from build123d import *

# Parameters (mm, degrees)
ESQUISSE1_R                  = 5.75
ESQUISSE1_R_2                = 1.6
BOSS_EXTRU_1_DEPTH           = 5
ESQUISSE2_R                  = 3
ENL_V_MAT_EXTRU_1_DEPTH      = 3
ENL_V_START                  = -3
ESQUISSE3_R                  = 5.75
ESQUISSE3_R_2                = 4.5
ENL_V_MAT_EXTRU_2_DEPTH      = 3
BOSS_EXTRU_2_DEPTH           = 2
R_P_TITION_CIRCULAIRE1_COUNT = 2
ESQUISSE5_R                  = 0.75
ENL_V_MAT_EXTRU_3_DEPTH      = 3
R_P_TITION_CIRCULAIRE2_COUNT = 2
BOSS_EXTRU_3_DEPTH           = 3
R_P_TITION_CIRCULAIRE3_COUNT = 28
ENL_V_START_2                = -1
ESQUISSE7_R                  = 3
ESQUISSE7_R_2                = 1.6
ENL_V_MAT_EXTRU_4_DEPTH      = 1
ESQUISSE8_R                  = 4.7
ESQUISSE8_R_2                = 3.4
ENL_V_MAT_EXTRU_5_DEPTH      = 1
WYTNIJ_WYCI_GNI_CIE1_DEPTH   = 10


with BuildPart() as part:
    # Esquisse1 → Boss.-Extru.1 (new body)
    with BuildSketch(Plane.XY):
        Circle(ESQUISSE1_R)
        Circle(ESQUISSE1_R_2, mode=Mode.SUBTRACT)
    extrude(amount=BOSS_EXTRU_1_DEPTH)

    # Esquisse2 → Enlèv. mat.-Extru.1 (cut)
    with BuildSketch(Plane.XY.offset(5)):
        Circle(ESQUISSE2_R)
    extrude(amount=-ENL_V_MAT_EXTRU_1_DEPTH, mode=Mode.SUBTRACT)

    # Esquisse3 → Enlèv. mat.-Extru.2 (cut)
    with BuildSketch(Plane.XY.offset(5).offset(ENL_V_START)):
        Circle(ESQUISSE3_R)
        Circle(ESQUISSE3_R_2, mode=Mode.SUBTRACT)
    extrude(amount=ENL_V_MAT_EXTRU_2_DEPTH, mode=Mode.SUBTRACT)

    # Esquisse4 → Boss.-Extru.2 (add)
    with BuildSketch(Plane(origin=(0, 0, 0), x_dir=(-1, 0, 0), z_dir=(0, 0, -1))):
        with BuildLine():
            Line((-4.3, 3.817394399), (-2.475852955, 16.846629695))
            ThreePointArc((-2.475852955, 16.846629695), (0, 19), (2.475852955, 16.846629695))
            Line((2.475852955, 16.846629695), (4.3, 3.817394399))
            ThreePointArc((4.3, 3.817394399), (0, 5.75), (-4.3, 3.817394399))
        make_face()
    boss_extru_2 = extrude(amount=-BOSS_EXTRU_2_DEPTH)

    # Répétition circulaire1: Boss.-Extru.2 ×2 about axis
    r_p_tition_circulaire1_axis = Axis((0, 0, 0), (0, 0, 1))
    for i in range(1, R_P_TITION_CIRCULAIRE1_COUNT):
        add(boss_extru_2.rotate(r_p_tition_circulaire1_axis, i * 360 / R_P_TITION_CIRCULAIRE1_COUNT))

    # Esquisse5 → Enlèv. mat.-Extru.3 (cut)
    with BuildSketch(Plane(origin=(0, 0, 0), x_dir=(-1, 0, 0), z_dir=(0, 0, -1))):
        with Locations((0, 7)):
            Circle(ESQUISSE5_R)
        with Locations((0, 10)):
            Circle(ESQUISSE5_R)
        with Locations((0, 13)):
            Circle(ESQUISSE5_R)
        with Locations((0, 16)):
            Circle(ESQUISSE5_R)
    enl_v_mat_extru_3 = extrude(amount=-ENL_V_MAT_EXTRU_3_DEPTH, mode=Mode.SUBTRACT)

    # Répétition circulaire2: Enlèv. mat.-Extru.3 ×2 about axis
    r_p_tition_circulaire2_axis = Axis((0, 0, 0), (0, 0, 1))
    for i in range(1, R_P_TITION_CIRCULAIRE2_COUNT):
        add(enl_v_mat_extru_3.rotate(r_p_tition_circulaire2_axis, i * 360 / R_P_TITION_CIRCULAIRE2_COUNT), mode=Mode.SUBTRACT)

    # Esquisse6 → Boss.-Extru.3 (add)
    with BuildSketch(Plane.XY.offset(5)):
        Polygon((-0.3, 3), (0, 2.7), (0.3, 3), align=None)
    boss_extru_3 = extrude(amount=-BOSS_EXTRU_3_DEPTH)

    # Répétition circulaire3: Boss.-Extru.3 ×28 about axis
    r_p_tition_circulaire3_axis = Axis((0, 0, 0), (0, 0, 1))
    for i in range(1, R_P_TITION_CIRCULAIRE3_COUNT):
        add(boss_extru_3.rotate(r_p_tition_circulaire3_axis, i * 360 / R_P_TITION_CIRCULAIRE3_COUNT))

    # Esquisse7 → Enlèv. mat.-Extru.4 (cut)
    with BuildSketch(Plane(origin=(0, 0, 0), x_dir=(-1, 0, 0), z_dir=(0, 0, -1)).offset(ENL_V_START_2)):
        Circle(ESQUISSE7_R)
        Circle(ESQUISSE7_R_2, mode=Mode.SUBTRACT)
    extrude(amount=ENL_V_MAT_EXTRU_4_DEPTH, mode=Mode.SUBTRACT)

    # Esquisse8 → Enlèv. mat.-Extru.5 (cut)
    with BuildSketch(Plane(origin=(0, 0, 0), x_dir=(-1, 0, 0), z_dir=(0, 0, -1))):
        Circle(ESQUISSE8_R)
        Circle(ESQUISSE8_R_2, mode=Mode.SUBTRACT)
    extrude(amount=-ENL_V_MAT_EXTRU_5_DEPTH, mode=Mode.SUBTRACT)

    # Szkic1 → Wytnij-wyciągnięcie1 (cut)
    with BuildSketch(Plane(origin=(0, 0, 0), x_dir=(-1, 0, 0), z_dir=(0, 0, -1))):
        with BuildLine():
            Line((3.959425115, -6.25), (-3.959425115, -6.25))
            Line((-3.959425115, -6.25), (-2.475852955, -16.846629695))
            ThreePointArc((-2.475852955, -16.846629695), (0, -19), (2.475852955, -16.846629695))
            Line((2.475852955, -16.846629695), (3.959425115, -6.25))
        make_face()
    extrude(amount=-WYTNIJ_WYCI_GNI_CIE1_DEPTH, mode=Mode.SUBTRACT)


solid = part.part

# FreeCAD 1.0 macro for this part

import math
import FreeCAD as App
import Part
import Sketcher
from FreeCAD import Vector
Q = App.Units.Quantity


def add_polygon(sketch, points):
    """Adds a closed chain of lines whose ends are joined by coincident constraints."""
    first, n = sketch.GeometryCount, len(points)
    for a, b in zip(points, points[1:] + points[:1]):
        sketch.addGeometry(Part.LineSegment(App.Vector(*a, 0), App.Vector(*b, 0)), False)
    for i in range(n):
        sketch.addConstraint(Sketcher.Constraint("Coincident", first + i, 2, first + (i + 1) % n, 1))

doc = App.newDocument("Part")
body = doc.addObject("PartDesign::Body", "Body")

# Sketch on XY plane
sketch1 = body.newObject("Sketcher::SketchObject", "Sketch")
sketch1.AttachmentSupport = (doc.getObject("XY_Plane"), [""])
sketch1.MapMode = "FlatFace"
sketch1.addGeometry(Part.Circle(Vector(0, 0, 0), Vector(0, 0, 1), 5.75), False)
sketch1.addGeometry(Part.Circle(Vector(0, 0, 0), Vector(0, 0, 1), 1.6), False)
sketch1.addConstraint(Sketcher.Constraint("Coincident", 0, 3, -1, 1))
sketch1.addConstraint(Sketcher.Constraint("Coincident", 1, 3, -1, 1))
sketch1.addConstraint(Sketcher.Constraint("Diameter", 0, Q("11.5 mm")))
sketch1.addConstraint(Sketcher.Constraint("Diameter", 1, Q("3.2 mm")))
pad1 = body.newObject("PartDesign::Pad", "Pad")
pad1.Profile = sketch1
pad1.Length = 5

# Sketch on XY plane
sketch2 = body.newObject("Sketcher::SketchObject", "Sketch001")
sketch2.AttachmentSupport = (doc.getObject("XY_Plane"), [""])
sketch2.MapMode = "FlatFace"
sketch2.AttachmentOffset = App.Placement(Vector(0, 0, 5), App.Rotation())
sketch2.addGeometry(Part.Circle(Vector(0, 0, 0), Vector(0, 0, 1), 3), False)
sketch2.addConstraint(Sketcher.Constraint("Coincident", 0, 3, -1, 1))
sketch2.addConstraint(Sketcher.Constraint("Diameter", 0, Q("6 mm")))
pocket1 = body.newObject("PartDesign::Pocket", "Pocket")
pocket1.Profile = sketch2
pocket1.Length = 3

# Sketch on XY plane
sketch3 = body.newObject("Sketcher::SketchObject", "Sketch002")
sketch3.AttachmentSupport = (doc.getObject("XY_Plane"), [""])
sketch3.MapMode = "FlatFace"
sketch3.AttachmentOffset = App.Placement(Vector(0, 0, 2), App.Rotation())
sketch3.addGeometry(Part.Circle(Vector(0, 0, 0), Vector(0, 0, 1), 5.75), False)
sketch3.addGeometry(Part.Circle(Vector(0, 0, 0), Vector(0, 0, 1), 4.5), False)
sketch3.addConstraint(Sketcher.Constraint("Coincident", 0, 3, -1, 1))
sketch3.addConstraint(Sketcher.Constraint("Coincident", 1, 3, -1, 1))
sketch3.addConstraint(Sketcher.Constraint("Diameter", 1, Q("9 mm")))
sketch3.addConstraint(Sketcher.Constraint("Diameter", 0, Q("11.5 mm")))
pocket2 = body.newObject("PartDesign::Pocket", "Pocket001")
pocket2.Profile = sketch3
pocket2.Length = 3
pocket2.Reversed = True

# Sketch on XY plane
sketch4 = body.newObject("Sketcher::SketchObject", "Sketch003")
sketch4.AttachmentSupport = (doc.getObject("XY_Plane"), [""])
sketch4.MapMode = "FlatFace"
sketch4.addGeometry(Part.LineSegment(Vector(2.475853, 16.84663, 0), Vector(4.3, 3.817394, 0)), False)
sketch4.addGeometry(Part.ArcOfCircle(Part.Circle(Vector(0, 0, 0), Vector(0, 0, 1), 5.75), math.radians(41.597584), math.radians(138.402416)), False)
sketch4.addGeometry(Part.LineSegment(Vector(-4.3, 3.817394, 0), Vector(-2.475853, 16.84663, 0)), False)
sketch4.addGeometry(Part.ArcOfCircle(Part.Circle(Vector(0, 16.5, 0), Vector(0, 0, 1), 2.5), math.radians(7.969844), math.radians(172.030156)), False)
sketch4.addConstraint(Sketcher.Constraint("Coincident", 0, 2, 1, 1))
sketch4.addConstraint(Sketcher.Constraint("Coincident", 1, 2, 2, 1))
sketch4.addConstraint(Sketcher.Constraint("Tangent", 2, 2, 3, 2))
sketch4.addConstraint(Sketcher.Constraint("Tangent", 3, 1, 0, 1))
sketch4.addConstraint(Sketcher.Constraint("Coincident", 1, 3, -1, 1))
sketch4.addConstraint(Sketcher.Constraint("Symmetric", 2, 2, 3, 1, -2))
sketch4.addConstraint(Sketcher.Constraint("Radius", 3, Q("2.5 mm")))
sketch4.addConstraint(Sketcher.Constraint("Radius", 1, Q("5.75 mm")))
sketch4.addConstraint(Sketcher.Constraint("DistanceY", -1, 1, 3, 3, Q("16.5 mm")))
sketch4.addConstraint(Sketcher.Constraint("DistanceX", -1, 1, 0, 2, Q("4.3 mm")))
pad2 = body.newObject("PartDesign::Pad", "Pad001")
pad2.Profile = sketch4
pad2.Length = 2
doc.recompute()

polarpattern = body.newObject("PartDesign::PolarPattern", "PolarPattern")
polarpattern.Originals = [pad2]
polarpattern.Axis = (doc.getObject("Z_Axis"), [""])
polarpattern.Angle = 360
polarpattern.Occurrences = 2
body.Tip = polarpattern

# Sketch on XY plane
sketch5 = body.newObject("Sketcher::SketchObject", "Sketch004")
sketch5.AttachmentSupport = (doc.getObject("XY_Plane"), [""])
sketch5.MapMode = "FlatFace"
sketch5.addGeometry(Part.Circle(Vector(0, 7, 0), Vector(0, 0, 1), 0.75), False)
sketch5.addGeometry(Part.Circle(Vector(0, 10, 0), Vector(0, 0, 1), 0.75), False)
sketch5.addGeometry(Part.Circle(Vector(0, 13, 0), Vector(0, 0, 1), 0.75), False)
sketch5.addGeometry(Part.Circle(Vector(0, 16, 0), Vector(0, 0, 1), 0.75), False)
sketch5.addConstraint(Sketcher.Constraint("Equal", 0, 1))
sketch5.addConstraint(Sketcher.Constraint("Equal", 1, 2))
sketch5.addConstraint(Sketcher.Constraint("Equal", 2, 3))
sketch5.addConstraint(Sketcher.Constraint("PointOnObject", 0, 3, -2))
sketch5.addConstraint(Sketcher.Constraint("PointOnObject", 1, 3, -2))
sketch5.addConstraint(Sketcher.Constraint("PointOnObject", 2, 3, -2))
sketch5.addConstraint(Sketcher.Constraint("PointOnObject", 3, 3, -2))
sketch5.addConstraint(Sketcher.Constraint("Diameter", 0, Q("1.5 mm")))
sketch5.addConstraint(Sketcher.Constraint("DistanceY", -1, 1, 0, 3, Q("7 mm")))
sketch5.addConstraint(Sketcher.Constraint("DistanceY", -1, 1, 1, 3, Q("10 mm")))
sketch5.addConstraint(Sketcher.Constraint("DistanceY", -1, 1, 2, 3, Q("13 mm")))
sketch5.addConstraint(Sketcher.Constraint("DistanceY", -1, 1, 3, 3, Q("16 mm")))
pocket3 = body.newObject("PartDesign::Pocket", "Pocket002")
pocket3.Profile = sketch5
pocket3.Length = 3
pocket3.Reversed = True
doc.recompute()

polarpattern2 = body.newObject("PartDesign::PolarPattern", "PolarPattern001")
polarpattern2.Originals = [pocket3]
polarpattern2.Axis = (doc.getObject("Z_Axis"), [""])
polarpattern2.Angle = 360
polarpattern2.Occurrences = 2
body.Tip = polarpattern2

# Sketch on XY plane
sketch6 = body.newObject("Sketcher::SketchObject", "Sketch005")
sketch6.AttachmentSupport = (doc.getObject("XY_Plane"), [""])
sketch6.MapMode = "FlatFace"
sketch6.AttachmentOffset = App.Placement(Vector(0, 0, 5), App.Rotation())
add_polygon(sketch6, [(-0.3, 3), (0, 2.7), (0.3, 3)])  # lines 0-2
sketch6.addConstraint(Sketcher.Constraint("Horizontal", 2))
sketch6.addConstraint(Sketcher.Constraint("PointOnObject", 0, 2, -2))
sketch6.addConstraint(Sketcher.Constraint("Perpendicular", 0, 1))
sketch6.addConstraint(Sketcher.Constraint("Equal", 0, 1))
sketch6.addConstraint(Sketcher.Constraint("DistanceX", 2, 2, 2, 1, Q("0.6 mm")))
sketch6.addConstraint(Sketcher.Constraint("DistanceY", -1, 1, 1, 2, Q("3 mm")))
pad3 = body.newObject("PartDesign::Pad", "Pad002")
pad3.Profile = sketch6
pad3.Length = 3
pad3.Reversed = True
doc.recompute()

polarpattern3 = body.newObject("PartDesign::PolarPattern", "PolarPattern002")
polarpattern3.Originals = [pad3]
polarpattern3.Axis = (doc.getObject("Z_Axis"), [""])
polarpattern3.Angle = 360
polarpattern3.Occurrences = 28
body.Tip = polarpattern3

# Sketch on XY plane
sketch7 = body.newObject("Sketcher::SketchObject", "Sketch006")
sketch7.AttachmentSupport = (doc.getObject("XY_Plane"), [""])
sketch7.MapMode = "FlatFace"
sketch7.AttachmentOffset = App.Placement(Vector(0, 0, 1), App.Rotation())
sketch7.addGeometry(Part.Circle(Vector(0, 0, 0), Vector(0, 0, 1), 3), False)
sketch7.addGeometry(Part.Circle(Vector(0, 0, 0), Vector(0, 0, 1), 1.6), False)
sketch7.addConstraint(Sketcher.Constraint("Coincident", 0, 3, -1, 1))
sketch7.addConstraint(Sketcher.Constraint("Coincident", 1, 3, -1, 1))
sketch7.addConstraint(Sketcher.Constraint("Diameter", 0, Q("6 mm")))
sketch7.addConstraint(Sketcher.Constraint("Diameter", 1, Q("3.2 mm")))
pocket4 = body.newObject("PartDesign::Pocket", "Pocket003")
pocket4.Profile = sketch7
pocket4.Length = 1

# Sketch on XY plane
sketch8 = body.newObject("Sketcher::SketchObject", "Sketch007")
sketch8.AttachmentSupport = (doc.getObject("XY_Plane"), [""])
sketch8.MapMode = "FlatFace"
sketch8.addGeometry(Part.Circle(Vector(0, 0, 0), Vector(0, 0, 1), 4.7), False)
sketch8.addGeometry(Part.Circle(Vector(0, 0, 0), Vector(0, 0, 1), 3.4), False)
sketch8.addConstraint(Sketcher.Constraint("Coincident", 0, 3, -1, 1))
sketch8.addConstraint(Sketcher.Constraint("Coincident", 1, 3, -1, 1))
sketch8.addConstraint(Sketcher.Constraint("Diameter", 0, Q("9.4 mm")))
sketch8.addConstraint(Sketcher.Constraint("Diameter", 1, Q("6.8 mm")))
pocket5 = body.newObject("PartDesign::Pocket", "Pocket004")
pocket5.Profile = sketch8
pocket5.Length = 1
pocket5.Reversed = True

# Sketch on XY plane
sketch9 = body.newObject("Sketcher::SketchObject", "Sketch008")
sketch9.AttachmentSupport = (doc.getObject("XY_Plane"), [""])
sketch9.MapMode = "FlatFace"
sketch9.addGeometry(Part.LineSegment(Vector(-3.959425, -6.25, 0), Vector(3.959425, -6.25, 0)), False)
sketch9.addGeometry(Part.LineSegment(Vector(3.959425, -6.25, 0), Vector(2.475853, -16.84663, 0)), False)
sketch9.addGeometry(Part.ArcOfCircle(Part.Circle(Vector(0, -16.5, 0), Vector(0, 0, 1), 2.5), math.radians(-172.030156), math.radians(-7.969844)), False)
sketch9.addGeometry(Part.LineSegment(Vector(-2.475853, -16.84663, 0), Vector(-3.959425, -6.25, 0)), False)
sketch9.addConstraint(Sketcher.Constraint("Coincident", 0, 2, 1, 1))
sketch9.addConstraint(Sketcher.Constraint("Tangent", 1, 2, 2, 2))
sketch9.addConstraint(Sketcher.Constraint("Tangent", 2, 1, 3, 1))
sketch9.addConstraint(Sketcher.Constraint("Coincident", 3, 2, 0, 1))
sketch9.addConstraint(Sketcher.Constraint("Horizontal", 0))
sketch9.addConstraint(Sketcher.Constraint("Symmetric", 1, 2, 2, 1, -2))
sketch9.addConstraint(Sketcher.Constraint("Radius", 2, Q("2.5 mm")))
sketch9.addConstraint(Sketcher.Constraint("DistanceY", 2, 3, -1, 1, Q("16.5 mm")))
sketch9.addConstraint(Sketcher.Constraint("DistanceY", 0, 2, -1, 1, Q("6.25 mm")))
sketch9.addConstraint(Sketcher.Constraint("DistanceX", 0, 1, 0, 2, Q("7.91885 mm")))
pocket6 = body.newObject("PartDesign::Pocket", "Pocket005")
pocket6.Profile = sketch9
pocket6.Length = 10
pocket6.Reversed = True

doc.recompute()
